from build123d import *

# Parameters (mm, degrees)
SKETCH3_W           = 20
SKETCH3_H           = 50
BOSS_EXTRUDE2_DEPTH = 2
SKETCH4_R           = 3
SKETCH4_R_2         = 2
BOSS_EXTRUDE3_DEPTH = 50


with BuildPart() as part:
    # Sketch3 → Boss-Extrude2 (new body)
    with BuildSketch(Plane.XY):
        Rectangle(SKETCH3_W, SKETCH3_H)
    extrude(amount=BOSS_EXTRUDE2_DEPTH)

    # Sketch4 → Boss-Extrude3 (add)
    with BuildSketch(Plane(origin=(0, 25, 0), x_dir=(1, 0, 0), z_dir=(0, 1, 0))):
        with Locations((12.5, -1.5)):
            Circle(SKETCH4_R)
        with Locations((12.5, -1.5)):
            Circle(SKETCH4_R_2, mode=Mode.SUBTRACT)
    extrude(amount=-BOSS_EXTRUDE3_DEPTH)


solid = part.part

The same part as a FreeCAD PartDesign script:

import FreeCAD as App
import Part
import Sketcher
from FreeCAD import Vector


def add_polygon(sketch, points):
    """Adds a closed chain of lines whose ends are joined by coincident constraints."""
    first, n = sketch.GeometryCount, len(points)
    for a, b in zip(points, points[1:] + points[:1]):
        sketch.addGeometry(Part.LineSegment(App.Vector(*a, 0), App.Vector(*b, 0)), False)
    for i in range(n):
        sketch.addConstraint(Sketcher.Constraint("Coincident", first + i, 2, first + (i + 1) % n, 1))

doc = App.newDocument("Part")
body = doc.addObject("PartDesign::Body", "Body")

# Sketch on XY plane
sketch1 = doc.addObject("Sketcher::SketchObject", "Sketch")
body.addObject(sketch1)
sketch1.AttachmentSupport = (doc.XY_Plane, [""])
sketch1.MapMode = "FlatFace"
add_polygon(sketch1, [(-10, 25), (-10, -25), (10, -25), (10, 25)])  # lines 0-3
sketch1.addConstraint([
    Sketcher.Constraint("Vertical", 0),
    Sketcher.Constraint("Horizontal", 1),
    Sketcher.Constraint("Vertical", 2),
    Sketcher.Constraint("Horizontal", 3),
    Sketcher.Constraint("Symmetric", 0, 2, 2, 2, -1, 1),
    Sketcher.Constraint("DistanceX", 1, 1, 1, 2, 20.0),
    Sketcher.Constraint("DistanceY", 0, 2, 0, 1, 50.0),
])
pad1 = doc.addObject("PartDesign::Pad", "Pad")
body.addObject(pad1)
pad1.Profile = sketch1
pad1.Length = 2

# Sketch on XZ plane
sketch2 = doc.addObject("Sketcher::SketchObject", "Sketch001")
body.addObject(sketch2)
sketch2.AttachmentSupport = (doc.XZ_Plane, [""])
sketch2.MapMode = "FlatFace"
sketch2.AttachmentOffset = App.Placement(Vector(0, 0, -25), App.Rotation())
sketch2.addGeometry([
    Part.Circle(Vector(12.5, 1.5, 0), Vector(0, 0, 1), 3),
    Part.Circle(Vector(12.5, 1.5, 0), Vector(0, 0, 1), 2),
], False)
sketch2.addConstraint([
    Sketcher.Constraint("Coincident", 1, 3, 0, 3),
    Sketcher.Constraint("Diameter", 0, 6.0),
    Sketcher.Constraint("Diameter", 1, 4.0),
    Sketcher.Constraint("DistanceX", -1, 1, 0, 3, 12.5),
    Sketcher.Constraint("DistanceY", -1, 1, 0, 3, 1.5),
])
pad2 = doc.addObject("PartDesign::Pad", "Pad001")
body.addObject(pad2)
pad2.Profile = sketch2
pad2.Length = 50

doc.recompute()
